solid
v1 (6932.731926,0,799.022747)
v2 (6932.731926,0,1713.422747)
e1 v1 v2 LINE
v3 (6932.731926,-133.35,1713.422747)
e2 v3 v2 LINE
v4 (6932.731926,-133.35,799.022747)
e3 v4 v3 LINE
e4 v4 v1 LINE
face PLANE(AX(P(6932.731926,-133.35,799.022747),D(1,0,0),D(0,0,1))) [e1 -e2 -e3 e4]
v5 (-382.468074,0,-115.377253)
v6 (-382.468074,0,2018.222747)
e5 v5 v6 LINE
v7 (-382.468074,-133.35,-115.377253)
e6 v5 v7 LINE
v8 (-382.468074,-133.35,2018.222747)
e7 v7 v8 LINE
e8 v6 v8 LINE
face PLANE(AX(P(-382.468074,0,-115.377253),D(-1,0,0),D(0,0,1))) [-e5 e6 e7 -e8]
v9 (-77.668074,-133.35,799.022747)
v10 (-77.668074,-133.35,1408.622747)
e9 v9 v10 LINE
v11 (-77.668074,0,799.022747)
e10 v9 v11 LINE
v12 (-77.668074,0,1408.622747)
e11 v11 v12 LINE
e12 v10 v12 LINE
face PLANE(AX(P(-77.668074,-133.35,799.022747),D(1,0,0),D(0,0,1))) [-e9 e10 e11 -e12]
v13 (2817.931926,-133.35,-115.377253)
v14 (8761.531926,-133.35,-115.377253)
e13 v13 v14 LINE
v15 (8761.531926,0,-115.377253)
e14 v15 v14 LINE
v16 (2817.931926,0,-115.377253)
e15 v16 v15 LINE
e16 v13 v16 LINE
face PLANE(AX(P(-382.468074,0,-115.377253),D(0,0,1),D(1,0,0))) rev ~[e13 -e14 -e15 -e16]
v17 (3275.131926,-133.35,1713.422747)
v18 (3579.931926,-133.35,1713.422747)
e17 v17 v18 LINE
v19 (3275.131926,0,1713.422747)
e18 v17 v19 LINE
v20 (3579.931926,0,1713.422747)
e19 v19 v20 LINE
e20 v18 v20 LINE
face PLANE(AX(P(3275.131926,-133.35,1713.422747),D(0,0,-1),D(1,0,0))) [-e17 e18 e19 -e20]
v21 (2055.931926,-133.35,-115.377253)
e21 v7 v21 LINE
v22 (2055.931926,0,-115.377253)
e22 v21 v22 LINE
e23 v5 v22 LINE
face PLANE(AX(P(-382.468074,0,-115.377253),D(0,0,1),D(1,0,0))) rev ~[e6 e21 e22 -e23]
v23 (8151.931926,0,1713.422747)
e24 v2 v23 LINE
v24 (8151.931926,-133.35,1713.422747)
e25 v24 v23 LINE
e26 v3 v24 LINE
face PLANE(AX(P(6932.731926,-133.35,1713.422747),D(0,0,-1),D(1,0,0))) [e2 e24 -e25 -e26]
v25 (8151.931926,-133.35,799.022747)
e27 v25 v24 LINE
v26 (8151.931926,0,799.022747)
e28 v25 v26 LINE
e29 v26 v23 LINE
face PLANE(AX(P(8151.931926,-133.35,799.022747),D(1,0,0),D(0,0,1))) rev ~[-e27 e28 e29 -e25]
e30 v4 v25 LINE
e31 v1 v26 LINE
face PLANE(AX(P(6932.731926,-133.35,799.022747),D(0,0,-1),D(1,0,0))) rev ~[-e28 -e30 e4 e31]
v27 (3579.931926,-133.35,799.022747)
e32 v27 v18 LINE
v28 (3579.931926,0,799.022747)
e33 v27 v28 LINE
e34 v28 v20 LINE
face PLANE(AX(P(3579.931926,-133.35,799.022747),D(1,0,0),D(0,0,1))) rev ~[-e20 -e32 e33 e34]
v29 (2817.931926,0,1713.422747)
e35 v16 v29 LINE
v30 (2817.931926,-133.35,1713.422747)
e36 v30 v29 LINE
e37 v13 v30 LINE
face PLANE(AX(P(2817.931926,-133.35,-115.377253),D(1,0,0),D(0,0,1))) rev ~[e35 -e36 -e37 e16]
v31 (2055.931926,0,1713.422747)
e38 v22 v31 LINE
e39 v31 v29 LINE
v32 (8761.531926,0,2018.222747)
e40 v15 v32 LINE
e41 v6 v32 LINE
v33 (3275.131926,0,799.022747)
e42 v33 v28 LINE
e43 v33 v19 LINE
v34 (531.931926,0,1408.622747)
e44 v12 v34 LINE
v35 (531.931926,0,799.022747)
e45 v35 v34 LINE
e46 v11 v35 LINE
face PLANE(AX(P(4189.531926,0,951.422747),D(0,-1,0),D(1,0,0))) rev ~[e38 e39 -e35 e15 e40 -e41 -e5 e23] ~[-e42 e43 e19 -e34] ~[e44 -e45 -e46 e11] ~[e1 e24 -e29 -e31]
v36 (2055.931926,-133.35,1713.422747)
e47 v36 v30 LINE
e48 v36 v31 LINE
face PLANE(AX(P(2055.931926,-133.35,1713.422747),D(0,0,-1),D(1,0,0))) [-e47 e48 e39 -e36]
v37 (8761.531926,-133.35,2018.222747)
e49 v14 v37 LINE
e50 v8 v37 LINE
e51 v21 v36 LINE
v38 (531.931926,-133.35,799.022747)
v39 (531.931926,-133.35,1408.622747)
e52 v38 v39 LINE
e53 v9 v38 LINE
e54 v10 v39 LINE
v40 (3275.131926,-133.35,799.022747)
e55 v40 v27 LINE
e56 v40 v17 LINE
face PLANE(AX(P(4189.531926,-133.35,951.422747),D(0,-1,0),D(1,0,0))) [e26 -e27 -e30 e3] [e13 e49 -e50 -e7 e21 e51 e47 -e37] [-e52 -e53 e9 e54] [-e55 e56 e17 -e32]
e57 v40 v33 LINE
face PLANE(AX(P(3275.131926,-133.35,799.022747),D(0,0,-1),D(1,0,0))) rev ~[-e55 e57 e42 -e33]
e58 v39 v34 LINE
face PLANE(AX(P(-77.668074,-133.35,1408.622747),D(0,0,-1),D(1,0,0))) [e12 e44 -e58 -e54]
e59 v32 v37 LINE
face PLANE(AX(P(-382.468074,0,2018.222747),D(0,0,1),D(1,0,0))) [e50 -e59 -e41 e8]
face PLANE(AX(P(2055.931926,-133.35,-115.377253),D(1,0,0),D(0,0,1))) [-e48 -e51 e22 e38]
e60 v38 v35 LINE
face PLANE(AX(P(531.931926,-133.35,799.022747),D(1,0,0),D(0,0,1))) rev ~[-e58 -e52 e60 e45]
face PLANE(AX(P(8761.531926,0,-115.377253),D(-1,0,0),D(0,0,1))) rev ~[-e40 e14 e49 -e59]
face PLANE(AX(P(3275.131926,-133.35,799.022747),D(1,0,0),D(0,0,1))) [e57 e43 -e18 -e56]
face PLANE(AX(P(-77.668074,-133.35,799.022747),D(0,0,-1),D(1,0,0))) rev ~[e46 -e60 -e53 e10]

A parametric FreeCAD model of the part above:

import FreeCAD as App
import Part
import Sketcher
from FreeCAD import Vector
Q = App.Units.Quantity


def add_polygon(sketch, points):
    """Adds a closed chain of lines whose ends are joined by coincident constraints."""
    first, n = sketch.GeometryCount, len(points)
    for a, b in zip(points, points[1:] + points[:1]):
        sketch.addGeometry(Part.LineSegment(App.Vector(*a, 0), App.Vector(*b, 0)), False)
    for i in range(n):
        sketch.addConstraint(Sketcher.Constraint("Coincident", first + i, 2, first + (i + 1) % n, 1))

doc = App.newDocument("Part")
body = doc.addObject("PartDesign::Body", "Body")

# Sketch on XZ plane
sketch1 = doc.addObject("Sketcher::SketchObject", "Sketch")
body.addObject(sketch1)
sketch1.AttachmentSupport = (doc.XZ_Plane, [""])
sketch1.MapMode = "FlatFace"
add_polygon(sketch1, [(-382, 2018), (-382, -115), (8762, -115), (8762, 2018)])  # lines 0-3
sketch1.addConstraint([
    Sketcher.Constraint("Vertical", 0),
    Sketcher.Constraint("Horizontal", 1),
    Sketcher.Constraint("Vertical", 2),
    Sketcher.Constraint("Horizontal", 3),
    Sketcher.Constraint("DistanceX", 1, 1, 1, 2, Q("360 in")),
    Sketcher.Constraint("DistanceY", 0, 2, 0, 1, Q("84 in")),
    Sketcher.Constraint("DistanceX", 0, 2, -1, 1, 382.468074),
    Sketcher.Constraint("DistanceY", 0, 2, -1, 1, 115.377253),
])
pad1 = doc.addObject("PartDesign::Pad", "Pad")
body.addObject(pad1)
pad1.Profile = sketch1
pad1.Length = Q("5.25 in")

# Sketch on XZ plane
sketch2 = doc.addObject("Sketcher::SketchObject", "Sketch001")
body.addObject(sketch2)
sketch2.AttachmentSupport = (doc.XZ_Plane, [""])
sketch2.MapMode = "FlatFace"
sketch2.AttachmentOffset = App.Placement(Vector(0, 0, 5.25 * 25.4), App.Rotation())
add_polygon(sketch2, [(-78, 1409), (-78, 799), (532, 799), (532, 1409)])  # lines 0-3
add_polygon(sketch2, [(2056, 1713), (2056, -115), (2818, -115), (2818, 1713)])  # lines 4-7
add_polygon(sketch2, [(3275, 1713), (3275, 799), (3580, 799), (3580, 1713)])  # lines 8-11
add_polygon(sketch2, [(6933, 1713), (6933, 799), (8152, 799), (8152, 1713)])  # lines 12-15
sketch2.addConstraint([
    Sketcher.Constraint("Vertical", 0),
    Sketcher.Constraint("Horizontal", 1),
    Sketcher.Constraint("Vertical", 2),
    Sketcher.Constraint("Horizontal", 3),
    Sketcher.Constraint("Vertical", 4),
    Sketcher.Constraint("Horizontal", 5),
    Sketcher.Constraint("Vertical", 6),
    Sketcher.Constraint("Horizontal", 7),
    Sketcher.Constraint("Vertical", 8),
    Sketcher.Constraint("Horizontal", 9),
    Sketcher.Constraint("Vertical", 10),
    Sketcher.Constraint("Horizontal", 11),
    Sketcher.Constraint("Vertical", 12),
    Sketcher.Constraint("Horizontal", 13),
    Sketcher.Constraint("Vertical", 14),
    Sketcher.Constraint("Horizontal", 15),
    Sketcher.Constraint("Horizontal", 1, 2, 8, 2),
    Sketcher.Constraint("Horizontal", 7, 2, 10, 2),
    Sketcher.Constraint("Horizontal", 9, 2, 12, 2),
    Sketcher.Constraint("Horizontal", 11, 2, 14, 2),
    Sketcher.Constraint("Equal", 3, 0),
    Sketcher.Constraint("DistanceX", 1, 1, 1, 2, Q("24 in")),
    Sketcher.Constraint("DistanceX", 5, 1, 5, 2, Q("30 in")),
    Sketcher.Constraint("DistanceX", 9, 1, 9, 2, Q("12 in")),
    Sketcher.Constraint("DistanceX", 13, 1, 13, 2, Q("48 in")),
    Sketcher.Constraint("DistanceY", 4, 2, 4, 1, Q("72 in")),
    Sketcher.Constraint("DistanceY", 8, 2, 8, 1, Q("36 in")),
    Sketcher.Constraint("DistanceX", 1, 2, 4, 2, Q("60 in")),
    Sketcher.Constraint("DistanceX", 5, 2, 8, 2, Q("18 in")),
    Sketcher.Constraint("DistanceX", 9, 2, 12, 2, Q("132 in")),
    Sketcher.Constraint("DistanceX", 0, 2, -1, 1, 77.668074),
    Sketcher.Constraint("DistanceY", -1, 1, 0, 2, 799.022747),
])
pocket1 = doc.addObject("PartDesign::Pocket", "Pocket")
body.addObject(pocket1)
pocket1.Profile = sketch2
pocket1.Length = Q("5.25 in")

doc.recompute()
